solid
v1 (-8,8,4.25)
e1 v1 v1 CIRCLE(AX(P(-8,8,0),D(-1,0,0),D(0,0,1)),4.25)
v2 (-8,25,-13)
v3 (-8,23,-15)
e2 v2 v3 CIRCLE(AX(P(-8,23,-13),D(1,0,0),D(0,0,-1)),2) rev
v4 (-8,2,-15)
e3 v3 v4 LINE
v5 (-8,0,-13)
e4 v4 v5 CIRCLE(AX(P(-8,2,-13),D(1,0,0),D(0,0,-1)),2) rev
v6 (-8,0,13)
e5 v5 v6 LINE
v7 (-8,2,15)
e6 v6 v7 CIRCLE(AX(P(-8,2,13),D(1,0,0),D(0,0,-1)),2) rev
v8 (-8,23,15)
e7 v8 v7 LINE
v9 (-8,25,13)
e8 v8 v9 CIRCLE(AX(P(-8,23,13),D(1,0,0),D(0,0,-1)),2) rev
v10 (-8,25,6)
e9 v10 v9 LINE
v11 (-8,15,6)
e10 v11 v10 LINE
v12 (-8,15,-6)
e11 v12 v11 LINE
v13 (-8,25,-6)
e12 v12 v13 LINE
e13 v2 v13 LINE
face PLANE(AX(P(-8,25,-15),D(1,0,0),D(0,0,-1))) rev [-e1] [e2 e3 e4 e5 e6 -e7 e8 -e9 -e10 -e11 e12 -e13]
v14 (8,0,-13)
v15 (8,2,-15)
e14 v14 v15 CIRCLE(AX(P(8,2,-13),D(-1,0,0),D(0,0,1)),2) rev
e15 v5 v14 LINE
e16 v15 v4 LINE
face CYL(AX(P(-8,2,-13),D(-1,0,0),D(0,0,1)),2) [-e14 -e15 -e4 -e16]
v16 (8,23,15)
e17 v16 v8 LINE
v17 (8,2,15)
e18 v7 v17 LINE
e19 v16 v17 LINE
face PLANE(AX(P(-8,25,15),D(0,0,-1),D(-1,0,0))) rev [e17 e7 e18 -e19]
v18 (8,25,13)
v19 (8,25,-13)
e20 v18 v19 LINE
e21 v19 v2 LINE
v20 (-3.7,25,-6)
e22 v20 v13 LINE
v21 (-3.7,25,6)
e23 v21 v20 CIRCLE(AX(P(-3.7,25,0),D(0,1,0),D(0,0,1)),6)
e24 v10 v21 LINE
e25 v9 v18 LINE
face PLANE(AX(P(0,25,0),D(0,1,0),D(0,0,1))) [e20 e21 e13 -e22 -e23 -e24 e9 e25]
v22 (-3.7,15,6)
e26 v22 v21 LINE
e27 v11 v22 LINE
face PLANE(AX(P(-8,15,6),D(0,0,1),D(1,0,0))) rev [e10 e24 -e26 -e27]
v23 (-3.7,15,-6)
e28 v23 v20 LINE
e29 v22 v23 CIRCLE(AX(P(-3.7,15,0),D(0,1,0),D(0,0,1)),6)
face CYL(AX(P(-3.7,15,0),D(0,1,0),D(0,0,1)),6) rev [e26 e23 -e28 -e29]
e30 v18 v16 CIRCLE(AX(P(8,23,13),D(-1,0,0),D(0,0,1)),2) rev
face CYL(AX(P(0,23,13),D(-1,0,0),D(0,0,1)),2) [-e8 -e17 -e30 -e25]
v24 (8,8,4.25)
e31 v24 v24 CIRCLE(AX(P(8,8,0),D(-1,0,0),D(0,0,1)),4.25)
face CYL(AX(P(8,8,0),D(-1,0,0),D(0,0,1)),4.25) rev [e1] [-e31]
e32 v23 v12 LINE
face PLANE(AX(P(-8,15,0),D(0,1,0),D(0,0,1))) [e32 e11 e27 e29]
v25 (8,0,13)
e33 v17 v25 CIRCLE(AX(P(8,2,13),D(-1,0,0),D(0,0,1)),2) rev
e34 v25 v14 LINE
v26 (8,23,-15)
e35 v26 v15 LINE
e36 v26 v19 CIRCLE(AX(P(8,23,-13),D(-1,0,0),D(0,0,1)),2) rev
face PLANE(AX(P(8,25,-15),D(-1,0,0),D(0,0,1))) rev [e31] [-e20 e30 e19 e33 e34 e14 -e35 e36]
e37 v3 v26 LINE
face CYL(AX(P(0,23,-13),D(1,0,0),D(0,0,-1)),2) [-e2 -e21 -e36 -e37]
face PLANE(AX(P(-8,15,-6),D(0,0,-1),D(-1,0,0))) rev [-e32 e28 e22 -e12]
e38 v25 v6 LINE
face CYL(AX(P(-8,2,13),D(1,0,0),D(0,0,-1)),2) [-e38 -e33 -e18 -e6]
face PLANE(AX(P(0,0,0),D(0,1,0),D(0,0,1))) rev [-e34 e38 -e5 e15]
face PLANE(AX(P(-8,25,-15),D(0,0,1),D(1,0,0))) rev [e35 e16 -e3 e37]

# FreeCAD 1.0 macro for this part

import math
import FreeCAD as App
import Part
import Sketcher


def edges_at(feature, points):
    """Names of the edges that pass closest to the given points."""
    edges = feature.Shape.Edges
    near = lambda p: min(range(len(edges)), key=lambda i: edges[i].distToShape(Part.Vertex(*p))[0])
    return sorted({f"Edge{near(p) + 1}" for p in points})

doc = App.newDocument("Part")
body = doc.addObject("PartDesign::Body", "Body")

sketch1 = body.newObject("Sketcher::SketchObject", "Sketch")
sketch1.AttachmentSupport = (doc.getObject("XZ_Plane"), [""])
sketch1.MapMode = "FlatFace"
sketch1.addGeometry(Part.LineSegment(App.Vector(-8, -15, 0), App.Vector(-8, 15, 0)), False)
sketch1.addGeometry(Part.LineSegment(App.Vector(-8, 15, 0), App.Vector(8, 15, 0)), False)
sketch1.addGeometry(Part.LineSegment(App.Vector(8, 15, 0), App.Vector(8, -15, 0)), False)
sketch1.addGeometry(Part.LineSegment(App.Vector(8, -15, 0), App.Vector(-8, -15, 0)), False)
sketch1.addConstraint(Sketcher.Constraint("Coincident", 0, 2, 1, 1))
sketch1.addConstraint(Sketcher.Constraint("Coincident", 1, 2, 2, 1))
sketch1.addConstraint(Sketcher.Constraint("Coincident", 2, 2, 3, 1))
sketch1.addConstraint(Sketcher.Constraint("Coincident", 3, 2, 0, 1))
sketch1.addConstraint(Sketcher.Constraint("Vertical", 0))
sketch1.addConstraint(Sketcher.Constraint("Horizontal", 1))
sketch1.addConstraint(Sketcher.Constraint("Vertical", 2))
sketch1.addConstraint(Sketcher.Constraint("Horizontal", 3))
sketch1.addConstraint(Sketcher.Constraint("Symmetric", 0, 2, 2, 2, -1, 1))
sketch1.addConstraint(Sketcher.Constraint("DistanceX", 1, 1, 1, 2, 16.0))
sketch1.addConstraint(Sketcher.Constraint("DistanceY", 0, 1, 0, 2, 30.0))
pad1 = body.newObject("PartDesign::Pad", "Pad")
pad1.Profile = sketch1
pad1.Length = 25
pad1.Reversed = True

sketch2 = body.newObject("Sketcher::SketchObject", "Sketch001")
sketch2.AttachmentSupport = (doc.getObject("XZ_Plane"), [""])
sketch2.MapMode = "FlatFace"
sketch2.AttachmentOffset = App.Placement(App.Vector(0, 0, -25), App.Rotation())
sketch2.addGeometry(Part.LineSegment(App.Vector(-3.7, -6, 0), App.Vector(-8, -6, 0)), False)
sketch2.addGeometry(Part.ArcOfCircle(Part.Circle(App.Vector(-8, 0, 0), App.Vector(0, 0, 1), 6), math.radians(90), math.radians(270)), False)
sketch2.addGeometry(Part.LineSegment(App.Vector(-8, 6, 0), App.Vector(-3.7, 6, 0)), False)
sketch2.addGeometry(Part.ArcOfCircle(Part.Circle(App.Vector(-3.7, 0, 0), App.Vector(0, 0, 1), 6), math.radians(-90), math.radians(90)), False)
sketch2.addConstraint(Sketcher.Constraint("Tangent", 0, 2, 1, 2))
sketch2.addConstraint(Sketcher.Constraint("Tangent", 1, 1, 2, 1))
sketch2.addConstraint(Sketcher.Constraint("Tangent", 2, 2, 3, 2))
sketch2.addConstraint(Sketcher.Constraint("Tangent", 3, 1, 0, 1))
sketch2.addConstraint(Sketcher.Constraint("Horizontal", 0))
sketch2.addConstraint(Sketcher.Constraint("Horizontal", 2))
sketch2.addConstraint(Sketcher.Constraint("PointOnObject", 1, 3, -1))
sketch2.addConstraint(Sketcher.Constraint("Radius", 1, 6.0))
sketch2.addConstraint(Sketcher.Constraint("DistanceX", 0, 2, 0, 1, 4.3))
sketch2.addConstraint(Sketcher.Constraint("DistanceX", 1, 3, -1, 1, 8.0))
pocket1 = body.newObject("PartDesign::Pocket", "Pocket")
pocket1.Profile = sketch2
pocket1.Length = 10
pocket1.Reversed = True

sketch3 = body.newObject("Sketcher::SketchObject", "Sketch002")
sketch3.AttachmentSupport = (doc.getObject("YZ_Plane"), [""])
sketch3.MapMode = "FlatFace"
sketch3.AttachmentOffset = App.Placement(App.Vector(0, 0, -8), App.Rotation())
sketch3.addGeometry(Part.Circle(App.Vector(8, 0, 0), App.Vector(0, 0, 1), 4.2), False)
sketch3.addConstraint(Sketcher.Constraint("PointOnObject", 0, 3, -1))
sketch3.addConstraint(Sketcher.Constraint("Diameter", 0, 8.5))
sketch3.addConstraint(Sketcher.Constraint("DistanceX", -1, 1, 0, 3, 8.0))
pocket2 = body.newObject("PartDesign::Pocket", "Pocket001")
pocket2.Profile = sketch3
pocket2.Type = "ThroughAll"
pocket2.Reversed = True
doc.recompute()

fillet = body.newObject("PartDesign::Fillet", "Fillet")
fillet.Base = (pocket2, edges_at(pocket2, [
    (0, 25, 15),
    (0, 0, 15),
    (0, 0, -15),
    (0, 25, -15),
]))
fillet.Radius = 2

doc.recompute()
